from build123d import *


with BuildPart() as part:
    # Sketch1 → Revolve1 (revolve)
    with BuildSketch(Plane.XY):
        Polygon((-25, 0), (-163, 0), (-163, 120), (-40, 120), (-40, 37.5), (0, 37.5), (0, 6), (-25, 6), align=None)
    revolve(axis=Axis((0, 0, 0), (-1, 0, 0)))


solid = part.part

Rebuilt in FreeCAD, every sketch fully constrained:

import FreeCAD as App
import Part
import Sketcher
from FreeCAD import Vector

doc = App.newDocument("Part")
body = doc.addObject("PartDesign::Body", "Body")

# Sketch on XY plane
sketch1 = doc.addObject("Sketcher::SketchObject", "Sketch")
body.addObject(sketch1)
sketch1.AttachmentSupport = (doc.XY_Plane, [""])
sketch1.MapMode = "FlatFace"
sketch1.addGeometry([
    Part.LineSegment(Vector(-163, 0, 0), Vector(-25, 0, 0)),  # 0
    Part.LineSegment(Vector(-25, 0, 0), Vector(-25, 6, 0)),  # 1
    Part.LineSegment(Vector(-25, 6, 0), Vector(0, 6, 0)),  # 2
    Part.LineSegment(Vector(0, 6, 0), Vector(0, 38, 0)),  # 3
    Part.LineSegment(Vector(0, 38, 0), Vector(-40, 38, 0)),  # 4
    Part.LineSegment(Vector(-40, 38, 0), Vector(-40, 120, 0)),  # 5
    Part.LineSegment(Vector(-40, 120, 0), Vector(-163, 120, 0)),  # 6
    Part.LineSegment(Vector(-163, 120, 0), Vector(-163, 0, 0)),  # 7
], False)
sketch1.addConstraint([
    Sketcher.Constraint("Coincident", 0, 2, 1, 1),
    Sketcher.Constraint("Coincident", 1, 2, 2, 1),
    Sketcher.Constraint("Coincident", 2, 2, 3, 1),
    Sketcher.Constraint("Coincident", 3, 2, 4, 1),
    Sketcher.Constraint("Coincident", 4, 2, 5, 1),
    Sketcher.Constraint("Coincident", 5, 2, 6, 1),
    Sketcher.Constraint("Coincident", 6, 2, 7, 1),
    Sketcher.Constraint("Coincident", 7, 2, 0, 1),
    Sketcher.Constraint("Horizontal", 0),
    Sketcher.Constraint("Vertical", 1),
    Sketcher.Constraint("Horizontal", 2),
    Sketcher.Constraint("Vertical", 3),
    Sketcher.Constraint("Horizontal", 4),
    Sketcher.Constraint("Vertical", 5),
    Sketcher.Constraint("Horizontal", 6),
    Sketcher.Constraint("Vertical", 7),
    Sketcher.Constraint("PointOnObject", 0, 2, -1),
    Sketcher.Constraint("PointOnObject", 2, 2, -2),
    Sketcher.Constraint("DistanceX", 0, 1, 0, 2, 138.0),
    Sketcher.Constraint("DistanceX", 2, 1, 2, 2, 25.0),
    Sketcher.Constraint("DistanceX", 4, 2, 4, 1, 40.0),
    Sketcher.Constraint("DistanceY", 1, 1, 1, 2, 6.0),
    Sketcher.Constraint("DistanceY", 7, 2, 7, 1, 120.0),
    Sketcher.Constraint("DistanceY", 3, 1, 3, 2, 31.5),
])
revolution = doc.addObject("PartDesign::Revolution", "Revolution")
body.addObject(revolution)
revolution.Profile = sketch1
revolution.ReferenceAxis = (sketch1, ["H_Axis"])
revolution.Angle = 360

doc.recompute()
